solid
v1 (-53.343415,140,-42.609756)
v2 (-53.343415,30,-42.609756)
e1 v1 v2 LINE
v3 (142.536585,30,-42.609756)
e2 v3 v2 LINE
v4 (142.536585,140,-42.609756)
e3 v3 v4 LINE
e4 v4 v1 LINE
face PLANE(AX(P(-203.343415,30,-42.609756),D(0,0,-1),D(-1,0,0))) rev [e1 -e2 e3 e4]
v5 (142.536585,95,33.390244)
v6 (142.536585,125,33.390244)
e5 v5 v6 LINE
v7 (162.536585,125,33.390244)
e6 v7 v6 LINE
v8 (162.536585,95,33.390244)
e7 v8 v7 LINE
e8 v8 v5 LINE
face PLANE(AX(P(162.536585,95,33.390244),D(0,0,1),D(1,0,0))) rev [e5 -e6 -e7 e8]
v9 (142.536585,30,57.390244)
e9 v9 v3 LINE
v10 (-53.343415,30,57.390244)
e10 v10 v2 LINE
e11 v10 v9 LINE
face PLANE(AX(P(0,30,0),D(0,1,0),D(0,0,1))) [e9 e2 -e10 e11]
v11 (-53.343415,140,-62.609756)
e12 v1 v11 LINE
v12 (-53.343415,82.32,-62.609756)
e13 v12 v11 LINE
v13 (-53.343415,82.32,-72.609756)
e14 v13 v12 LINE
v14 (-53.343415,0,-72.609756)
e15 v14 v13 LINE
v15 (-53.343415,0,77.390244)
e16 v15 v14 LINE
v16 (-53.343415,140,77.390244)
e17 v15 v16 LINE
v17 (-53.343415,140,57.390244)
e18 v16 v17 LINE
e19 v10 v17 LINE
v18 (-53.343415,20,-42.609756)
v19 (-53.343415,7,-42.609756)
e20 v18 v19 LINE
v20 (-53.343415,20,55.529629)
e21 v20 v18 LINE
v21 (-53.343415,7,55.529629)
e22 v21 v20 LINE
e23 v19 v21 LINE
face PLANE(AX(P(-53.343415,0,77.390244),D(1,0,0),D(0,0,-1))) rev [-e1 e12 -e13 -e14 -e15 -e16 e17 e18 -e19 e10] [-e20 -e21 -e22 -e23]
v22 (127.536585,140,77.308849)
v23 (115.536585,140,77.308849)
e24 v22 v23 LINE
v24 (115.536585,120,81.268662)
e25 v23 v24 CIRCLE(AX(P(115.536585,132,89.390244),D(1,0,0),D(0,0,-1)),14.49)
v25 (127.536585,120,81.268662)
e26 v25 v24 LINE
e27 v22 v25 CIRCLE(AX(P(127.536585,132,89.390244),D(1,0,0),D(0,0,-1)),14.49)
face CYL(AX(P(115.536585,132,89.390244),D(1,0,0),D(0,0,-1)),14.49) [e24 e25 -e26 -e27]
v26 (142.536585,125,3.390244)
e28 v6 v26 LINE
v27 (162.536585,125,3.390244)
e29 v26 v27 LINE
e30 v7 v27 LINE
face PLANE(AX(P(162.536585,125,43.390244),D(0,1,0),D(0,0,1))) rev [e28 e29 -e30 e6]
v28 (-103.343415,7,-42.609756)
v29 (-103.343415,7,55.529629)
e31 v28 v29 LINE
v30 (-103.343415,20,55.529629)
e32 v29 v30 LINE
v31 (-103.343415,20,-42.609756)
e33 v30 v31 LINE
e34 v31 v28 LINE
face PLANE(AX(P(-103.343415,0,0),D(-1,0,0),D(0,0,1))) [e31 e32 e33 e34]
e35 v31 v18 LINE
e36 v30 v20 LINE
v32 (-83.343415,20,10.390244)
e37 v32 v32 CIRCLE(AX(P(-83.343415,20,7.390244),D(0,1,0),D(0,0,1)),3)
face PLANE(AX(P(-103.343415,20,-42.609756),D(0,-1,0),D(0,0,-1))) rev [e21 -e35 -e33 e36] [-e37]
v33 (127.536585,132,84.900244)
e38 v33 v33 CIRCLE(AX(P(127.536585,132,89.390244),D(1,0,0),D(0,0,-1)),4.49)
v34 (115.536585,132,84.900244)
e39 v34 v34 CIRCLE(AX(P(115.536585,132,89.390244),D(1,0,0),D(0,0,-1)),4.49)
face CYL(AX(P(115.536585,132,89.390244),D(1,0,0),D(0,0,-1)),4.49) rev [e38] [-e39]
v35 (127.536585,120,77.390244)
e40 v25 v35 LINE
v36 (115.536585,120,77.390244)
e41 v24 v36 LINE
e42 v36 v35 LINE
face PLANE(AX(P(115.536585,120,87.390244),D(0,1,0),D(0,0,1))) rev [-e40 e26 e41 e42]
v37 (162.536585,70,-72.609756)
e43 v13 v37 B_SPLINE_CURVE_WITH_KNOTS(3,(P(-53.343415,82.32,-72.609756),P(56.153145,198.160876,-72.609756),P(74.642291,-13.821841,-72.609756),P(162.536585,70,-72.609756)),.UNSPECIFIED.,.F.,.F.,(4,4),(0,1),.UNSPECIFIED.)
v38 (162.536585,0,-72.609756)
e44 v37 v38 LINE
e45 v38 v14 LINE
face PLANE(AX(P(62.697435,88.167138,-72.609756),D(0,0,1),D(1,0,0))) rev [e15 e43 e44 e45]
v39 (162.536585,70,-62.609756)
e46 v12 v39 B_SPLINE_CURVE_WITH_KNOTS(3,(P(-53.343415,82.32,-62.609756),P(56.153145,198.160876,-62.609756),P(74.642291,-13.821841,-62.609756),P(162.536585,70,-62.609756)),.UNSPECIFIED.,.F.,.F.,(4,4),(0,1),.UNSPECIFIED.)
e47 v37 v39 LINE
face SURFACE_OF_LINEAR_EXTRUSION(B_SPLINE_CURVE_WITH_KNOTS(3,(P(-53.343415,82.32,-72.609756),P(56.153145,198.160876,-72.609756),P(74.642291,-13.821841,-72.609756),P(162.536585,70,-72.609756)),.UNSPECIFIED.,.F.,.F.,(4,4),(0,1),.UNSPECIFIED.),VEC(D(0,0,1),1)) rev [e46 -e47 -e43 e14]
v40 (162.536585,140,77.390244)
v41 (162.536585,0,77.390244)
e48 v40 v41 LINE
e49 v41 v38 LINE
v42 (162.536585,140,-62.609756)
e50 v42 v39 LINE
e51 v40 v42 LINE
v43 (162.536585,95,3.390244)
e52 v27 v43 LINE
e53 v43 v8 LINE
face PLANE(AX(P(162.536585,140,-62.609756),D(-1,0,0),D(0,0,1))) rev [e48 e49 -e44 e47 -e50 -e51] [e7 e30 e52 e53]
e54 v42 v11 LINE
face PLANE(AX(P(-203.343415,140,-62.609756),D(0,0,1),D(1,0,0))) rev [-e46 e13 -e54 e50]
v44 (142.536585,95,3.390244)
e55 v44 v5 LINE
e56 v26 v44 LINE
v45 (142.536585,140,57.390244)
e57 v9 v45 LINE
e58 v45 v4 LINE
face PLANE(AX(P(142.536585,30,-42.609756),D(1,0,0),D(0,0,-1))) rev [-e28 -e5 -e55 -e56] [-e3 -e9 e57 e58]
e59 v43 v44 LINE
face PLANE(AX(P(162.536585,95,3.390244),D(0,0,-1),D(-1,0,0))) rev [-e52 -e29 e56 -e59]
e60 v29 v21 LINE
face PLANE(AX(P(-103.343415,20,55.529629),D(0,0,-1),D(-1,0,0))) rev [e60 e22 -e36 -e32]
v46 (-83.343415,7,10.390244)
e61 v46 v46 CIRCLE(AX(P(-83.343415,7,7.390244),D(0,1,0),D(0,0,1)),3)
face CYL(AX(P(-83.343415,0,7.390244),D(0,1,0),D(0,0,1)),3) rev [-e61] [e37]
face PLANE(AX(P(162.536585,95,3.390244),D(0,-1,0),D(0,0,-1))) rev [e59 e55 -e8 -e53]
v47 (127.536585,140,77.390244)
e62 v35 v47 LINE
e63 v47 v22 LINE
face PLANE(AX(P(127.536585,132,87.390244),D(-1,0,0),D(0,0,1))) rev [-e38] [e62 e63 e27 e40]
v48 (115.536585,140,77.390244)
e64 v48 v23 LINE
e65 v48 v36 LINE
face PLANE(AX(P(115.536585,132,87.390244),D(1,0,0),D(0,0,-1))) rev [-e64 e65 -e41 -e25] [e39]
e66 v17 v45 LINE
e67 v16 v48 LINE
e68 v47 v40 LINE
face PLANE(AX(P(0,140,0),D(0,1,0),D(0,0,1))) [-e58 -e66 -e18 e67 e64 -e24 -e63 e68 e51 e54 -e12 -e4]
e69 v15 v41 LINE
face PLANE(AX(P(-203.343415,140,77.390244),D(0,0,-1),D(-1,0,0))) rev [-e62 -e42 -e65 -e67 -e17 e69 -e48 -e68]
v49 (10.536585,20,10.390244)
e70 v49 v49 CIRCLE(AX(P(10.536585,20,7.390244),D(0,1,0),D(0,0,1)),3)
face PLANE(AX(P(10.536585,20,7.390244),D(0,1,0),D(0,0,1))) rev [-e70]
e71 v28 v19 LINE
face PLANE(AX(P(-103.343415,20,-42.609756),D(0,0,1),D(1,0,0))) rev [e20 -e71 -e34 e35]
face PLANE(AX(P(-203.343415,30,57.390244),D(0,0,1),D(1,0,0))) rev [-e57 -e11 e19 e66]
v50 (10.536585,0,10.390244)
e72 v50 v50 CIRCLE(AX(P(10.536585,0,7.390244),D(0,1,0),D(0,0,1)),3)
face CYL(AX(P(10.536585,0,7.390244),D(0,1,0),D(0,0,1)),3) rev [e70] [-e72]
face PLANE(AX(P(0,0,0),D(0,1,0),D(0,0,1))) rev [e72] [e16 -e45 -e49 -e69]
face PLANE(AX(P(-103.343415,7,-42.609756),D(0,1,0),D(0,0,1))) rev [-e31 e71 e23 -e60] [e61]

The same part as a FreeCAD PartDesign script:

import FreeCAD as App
import Part
import Sketcher

V = App.Vector

doc = App.newDocument("Part")
body = doc.addObject("PartDesign::Body", "Body")

sketch1 = body.newObject("Sketcher::SketchObject", "Sketch")
sketch1.AttachmentSupport = (doc.getObject("XZ_Plane"), [""])
sketch1.MapMode = "FlatFace"
sketch1.addGeometry([
    Part.LineSegment(V(-203.343415, -62.609756, 0), V(-203.343415, 77.390244, 0)),
    Part.LineSegment(V(-203.343415, 77.390244, 0), V(162.536585, 77.390244, 0)),
    Part.LineSegment(V(162.536585, 77.390244, 0), V(162.536585, -62.609756, 0)),
    Part.LineSegment(V(162.536585, -62.609756, 0), V(-203.343415, -62.609756, 0)),
], False)
sketch1.addConstraint([
    Sketcher.Constraint("Coincident", 0, 2, 1, 1),
    Sketcher.Constraint("Coincident", 1, 2, 2, 1),
    Sketcher.Constraint("Coincident", 2, 2, 3, 1),
    Sketcher.Constraint("Coincident", 3, 2, 0, 1),
    Sketcher.Constraint("Vertical", 0),
    Sketcher.Constraint("Horizontal", 1),
    Sketcher.Constraint("Vertical", 2),
    Sketcher.Constraint("Horizontal", 3),
    Sketcher.Constraint("DistanceY", 0, 1, 0, 2, 140.0),
    Sketcher.Constraint("DistanceX", 1, 1, 1, 2, 365.88),
    Sketcher.Constraint("DistanceX", 0, 2, -1, 1, 203.343415),
    Sketcher.Constraint("DistanceY", -1, 1, 0, 2, 77.390244),
])
pad1 = body.newObject("PartDesign::Pad", "Pad")
pad1.Profile = sketch1
pad1.Length = 140
pad1.Reversed = True

sketch2 = body.newObject("Sketcher::SketchObject", "Sketch001")
sketch2.AttachmentSupport = (doc.getObject("XZ_Plane"), [""])
sketch2.MapMode = "FlatFace"
sketch2.AttachmentOffset = App.Placement(V(0, 0, -140), App.Rotation())
sketch2.addGeometry([
    Part.LineSegment(V(-203.343415, -42.609756, 0), V(-203.343415, 57.390244, 0)),
    Part.LineSegment(V(-203.343415, 57.390244, 0), V(142.536585, 57.390244, 0)),
    Part.LineSegment(V(142.536585, 57.390244, 0), V(142.536585, -42.609756, 0)),
    Part.LineSegment(V(142.536585, -42.609756, 0), V(-203.343415, -42.609756, 0)),
], False)
sketch2.addConstraint([
    Sketcher.Constraint("Coincident", 0, 2, 1, 1),
    Sketcher.Constraint("Coincident", 1, 2, 2, 1),
    Sketcher.Constraint("Coincident", 2, 2, 3, 1),
    Sketcher.Constraint("Coincident", 3, 2, 0, 1),
    Sketcher.Constraint("Vertical", 0),
    Sketcher.Constraint("Horizontal", 1),
    Sketcher.Constraint("Vertical", 2),
    Sketcher.Constraint("Horizontal", 3),
    Sketcher.Constraint("DistanceY", 0, 1, 0, 2, 100.0),
    Sketcher.Constraint("DistanceX", 1, 1, 1, 2, 345.88),
    Sketcher.Constraint("DistanceX", 0, 2, -1, 1, 203.343415),
    Sketcher.Constraint("DistanceY", -1, 1, 0, 2, 57.390244),
])
pocket1 = body.newObject("PartDesign::Pocket", "Pocket")
pocket1.Profile = sketch2
pocket1.Length = 110
pocket1.Reversed = True

sketch3 = body.newObject("Sketcher::SketchObject", "Sketch002")
sketch3.AttachmentSupport = (doc.getObject("XY_Plane"), [""])
sketch3.MapMode = "FlatFace"
sketch3.AttachmentOffset = App.Placement(V(0, 0, 77.390244), App.Rotation())
sketch3.addGeometry([
    Part.LineSegment(V(115.536585, 132, 0), V(115.536585, 120, 0)),
    Part.LineSegment(V(115.536585, 120, 0), V(127.536585, 120, 0)),
    Part.LineSegment(V(127.536585, 120, 0), V(127.536585, 132, 0)),
    Part.LineSegment(V(127.536585, 132, 0), V(115.536585, 132, 0)),
], False)
sketch3.addConstraint([
    Sketcher.Constraint("Coincident", 0, 2, 1, 1),
    Sketcher.Constraint("Coincident", 1, 2, 2, 1),
    Sketcher.Constraint("Coincident", 2, 2, 3, 1),
    Sketcher.Constraint("Coincident", 3, 2, 0, 1),
    Sketcher.Constraint("Vertical", 0),
    Sketcher.Constraint("Horizontal", 1),
    Sketcher.Constraint("Vertical", 2),
    Sketcher.Constraint("Horizontal", 3),
    Sketcher.Constraint("Equal", 3, 0),
    Sketcher.Constraint("DistanceX", 1, 1, 1, 2, 12.0),
    Sketcher.Constraint("DistanceY", -1, 1, 0, 2, 120.0),
    Sketcher.Constraint("DistanceX", -1, 1, 0, 2, 115.536585),
])
pad2 = body.newObject("PartDesign::Pad", "Pad001")
pad2.Profile = sketch3
pad2.Length = 10

sketch4 = body.newObject("Sketcher::SketchObject", "Sketch003")
sketch4.AttachmentSupport = (doc.getObject("YZ_Plane"), [""])
sketch4.MapMode = "FlatFace"
sketch4.AttachmentOffset = App.Placement(V(0, 0, 127.536585), App.Rotation())
sketch4.addGeometry([
    Part.Circle(V(132, 89.390244, 0), V(0, 0, 1), 14.49),
    Part.Circle(V(132, 89.390244, 0), V(0, 0, 1), 4.49),
], False)
sketch4.addConstraint([
    Sketcher.Constraint("Coincident", 1, 3, 0, 3),
    Sketcher.Constraint("Diameter", 0, 28.98),
    Sketcher.Constraint("Diameter", 1, 8.98),
    Sketcher.Constraint("DistanceX", -1, 1, 0, 3, 132.0),
    Sketcher.Constraint("DistanceY", -1, 1, 0, 3, 89.390244),
])
pad3 = body.newObject("PartDesign::Pad", "Pad002")
pad3.Profile = sketch4
pad3.Length = 12
pad3.Reversed = True

sketch5 = body.newObject("Sketcher::SketchObject", "Sketch004")
sketch5.AttachmentSupport = (doc.getObject("YZ_Plane"), [""])
sketch5.MapMode = "FlatFace"
sketch5.AttachmentOffset = App.Placement(V(0, 0, 127.536585), App.Rotation())
sketch5.addGeometry(Part.Circle(V(132, 89.390244, 0), V(0, 0, 1), 4.49), False)
sketch5.addConstraint([
    Sketcher.Constraint("Diameter", 0, 8.98),
    Sketcher.Constraint("DistanceX", -1, 1, 0, 3, 132.0),
    Sketcher.Constraint("DistanceY", -1, 1, 0, 3, 89.390244),
])
pocket2 = body.newObject("PartDesign::Pocket", "Pocket001")
pocket2.Profile = sketch5
pocket2.Type = "ThroughAll"

sketch6 = body.newObject("Sketcher::SketchObject", "Sketch005")
sketch6.AttachmentSupport = (doc.getObject("XZ_Plane"), [""])
sketch6.MapMode = "FlatFace"
sketch6.AttachmentOffset = App.Placement(V(0, 0, -140), App.Rotation())
sketch6.addGeometry([
    Part.LineSegment(V(-203.343415, -62.609756, 0), V(-203.343415, 77.390244, 0)),
    Part.LineSegment(V(-203.343415, 77.390244, 0), V(-53.343415, 77.390244, 0)),
    Part.LineSegment(V(-53.343415, 77.390244, 0), V(-53.343415, -62.609756, 0)),
    Part.LineSegment(V(-53.343415, -62.609756, 0), V(-203.343415, -62.609756, 0)),
], False)
sketch6.addConstraint([
    Sketcher.Constraint("Coincident", 0, 2, 1, 1),
    Sketcher.Constraint("Coincident", 1, 2, 2, 1),
    Sketcher.Constraint("Coincident", 2, 2, 3, 1),
    Sketcher.Constraint("Coincident", 3, 2, 0, 1),
    Sketcher.Constraint("Vertical", 0),
    Sketcher.Constraint("Horizontal", 1),
    Sketcher.Constraint("Vertical", 2),
    Sketcher.Constraint("Horizontal", 3),
    Sketcher.Constraint("DistanceX", 1, 1, 1, 2, 150.0),
    Sketcher.Constraint("DistanceY", 0, 1, 0, 2, 140.0),
    Sketcher.Constraint("DistanceX", 0, 2, -1, 1, 203.343415),
    Sketcher.Constraint("DistanceY", -1, 1, 0, 2, 77.390244),
])
pocket3 = body.newObject("PartDesign::Pocket", "Pocket002")
pocket3.Profile = sketch6
pocket3.Type = "ThroughAll"
pocket3.Reversed = True

sketch7 = body.newObject("Sketcher::SketchObject", "Sketch006")
sketch7.AttachmentSupport = (doc.getObject("YZ_Plane"), [""])
sketch7.MapMode = "FlatFace"
sketch7.AttachmentOffset = App.Placement(V(0, 0, -53.343415), App.Rotation())
sketch7.addGeometry([
    Part.LineSegment(V(20, -42.609756, 0), V(7, -42.609756, 0)),
    Part.LineSegment(V(7, -42.609756, 0), V(7, 55.529629, 0)),
    Part.LineSegment(V(7, 55.529629, 0), V(20, 55.529629, 0)),
    Part.LineSegment(V(20, 55.529629, 0), V(20, -42.609756, 0)),
], False)
sketch7.addConstraint([
    Sketcher.Constraint("Coincident", 0, 2, 1, 1),
    Sketcher.Constraint("Coincident", 1, 2, 2, 1),
    Sketcher.Constraint("Coincident", 2, 2, 3, 1),
    Sketcher.Constraint("Coincident", 3, 2, 0, 1),
    Sketcher.Constraint("Horizontal", 0),
    Sketcher.Constraint("Vertical", 1),
    Sketcher.Constraint("Horizontal", 2),
    Sketcher.Constraint("Vertical", 3),
    Sketcher.Constraint("DistanceX", 0, 2, 0, 1, 13.0),
    Sketcher.Constraint("DistanceX", -1, 1, 0, 2, 7.0),
    Sketcher.Constraint("DistanceY", 1, 1, 1, 2, 98.139385),
    Sketcher.Constraint("DistanceY", -1, 1, 1, 2, 55.529629),
])
pad4 = body.newObject("PartDesign::Pad", "Pad003")
pad4.Profile = sketch7
pad4.Length = 50
pad4.Reversed = True

sketch8 = body.newObject("Sketcher::SketchObject", "Sketch007")
sketch8.AttachmentSupport = (doc.getObject("XZ_Plane"), [""])
sketch8.MapMode = "FlatFace"
sketch8.AttachmentOffset = App.Placement(V(0, 0, -20), App.Rotation())
sketch8.addGeometry(Part.Circle(V(10.536585, 7.390244, 0), V(0, 0, 1), 3), False)
sketch8.addConstraint([
    Sketcher.Constraint("Diameter", 0, 6.0),
    Sketcher.Constraint("DistanceX", -1, 1, 0, 3, 10.536585),
    Sketcher.Constraint("DistanceY", -1, 1, 0, 3, 7.390244),
])
pocket4 = body.newObject("PartDesign::Pocket", "Pocket003")
pocket4.Profile = sketch8
pocket4.Type = "ThroughAll"
pocket4.Reversed = True

sketch9 = body.newObject("Sketcher::SketchObject", "Sketch008")
sketch9.AttachmentSupport = (doc.getObject("XY_Plane"), [""])
sketch9.MapMode = "FlatFace"
sketch9.AttachmentOffset = App.Placement(V(0, 0, -62.609756), App.Rotation())
sketch9.addGeometry([
    Part.LineSegment(V(162.536585, 70, 0), V(162.536585, 0, 0)),
    Part.LineSegment(V(162.536585, 0, 0), V(-53.343415, 0, 0)),
    Part.LineSegment(V(-53.343415, 0, 0), V(-53.343415, 82.32, 0)),
    Part.BSplineCurve([V(-53.343415, 82.32, 0), V(56.153145, 198.160876, 0), V(74.642291, -13.821841, 0), V(162.536585, 70, 0)], [4, 4], [0, 1], False, 3, [1, 1, 1, 1], False),
], False)
sketch9.addConstraint([
    Sketcher.Constraint("Block", 3),
    Sketcher.Constraint("Coincident", 0, 2, 1, 1),
    Sketcher.Constraint("Coincident", 1, 2, 2, 1),
    Sketcher.Constraint("Coincident", 2, 2, 3, 1),
    Sketcher.Constraint("Coincident", 3, 2, 0, 1),
    Sketcher.Constraint("Vertical", 0),
    Sketcher.Constraint("Horizontal", 1),
    Sketcher.Constraint("Vertical", 2),
    Sketcher.Constraint("PointOnObject", 0, 2, -1),
])
pad5 = body.newObject("PartDesign::Pad", "Pad004")
pad5.Profile = sketch9
pad5.Length = 10
pad5.Reversed = True

sketch10 = body.newObject("Sketcher::SketchObject", "Sketch009")
sketch10.AttachmentSupport = (doc.getObject("YZ_Plane"), [""])
sketch10.MapMode = "FlatFace"
sketch10.AttachmentOffset = App.Placement(V(0, 0, 142.536585), App.Rotation())
sketch10.addGeometry([
    Part.LineSegment(V(140, 3.390244, 0), V(95, 3.390244, 0)),
    Part.LineSegment(V(95, 3.390244, 0), V(95, 33.390244, 0)),
    Part.LineSegment(V(95, 33.390244, 0), V(140, 33.390244, 0)),
    Part.LineSegment(V(140, 33.390244, 0), V(140, 3.390244, 0)),
], False)
sketch10.addConstraint([
    Sketcher.Constraint("Coincident", 0, 2, 1, 1),
    Sketcher.Constraint("Coincident", 1, 2, 2, 1),
    Sketcher.Constraint("Coincident", 2, 2, 3, 1),
    Sketcher.Constraint("Coincident", 3, 2, 0, 1),
    Sketcher.Constraint("Horizontal", 0),
    Sketcher.Constraint("Vertical", 1),
    Sketcher.Constraint("Horizontal", 2),
    Sketcher.Constraint("Vertical", 3),
    Sketcher.Constraint("DistanceX", 0, 2, 0, 1, 45.0),
    Sketcher.Constraint("DistanceY", 1, 1, 1, 2, 30.0),
    Sketcher.Constraint("DistanceX", -1, 1, 0, 2, 95.0),
    Sketcher.Constraint("DistanceY", -1, 1, 0, 2, 3.390244),
])
pocket5 = body.newObject("PartDesign::Pocket", "Pocket004")
pocket5.Profile = sketch10
pocket5.Type = "ThroughAll"
pocket5.Reversed = True

sketch11 = body.newObject("Sketcher::SketchObject", "Sketch010")
sketch11.AttachmentSupport = (doc.getObject("XY_Plane"), [""])
sketch11.MapMode = "FlatFace"
sketch11.AttachmentOffset = App.Placement(V(0, 0, 3.390244), App.Rotation())
sketch11.addGeometry([
    Part.LineSegment(V(142.536585, 140, 0), V(142.536585, 125, 0)),
    Part.LineSegment(V(142.536585, 125, 0), V(162.536585, 125, 0)),
    Part.LineSegment(V(162.536585, 125, 0), V(162.536585, 140, 0)),
    Part.LineSegment(V(162.536585, 140, 0), V(142.536585, 140, 0)),
], False)
sketch11.addConstraint([
    Sketcher.Constraint("Coincident", 0, 2, 1, 1),
    Sketcher.Constraint("Coincident", 1, 2, 2, 1),
    Sketcher.Constraint("Coincident", 2, 2, 3, 1),
    Sketcher.Constraint("Coincident", 3, 2, 0, 1),
    Sketcher.Constraint("Vertical", 0),
    Sketcher.Constraint("Horizontal", 1),
    Sketcher.Constraint("Vertical", 2),
    Sketcher.Constraint("Horizontal", 3),
    Sketcher.Constraint("DistanceX", 1, 1, 1, 2, 20.0),
    Sketcher.Constraint("DistanceY", 0, 2, 0, 1, 15.0),
    Sketcher.Constraint("DistanceY", -1, 1, 0, 2, 125.0),
    Sketcher.Constraint("DistanceX", -1, 1, 0, 2, 142.536585),
])
pad6 = body.newObject("PartDesign::Pad", "Pad005")
pad6.Profile = sketch11
pad6.Length = 40

sketch12 = body.newObject("Sketcher::SketchObject", "Sketch011")
sketch12.AttachmentSupport = (doc.getObject("XZ_Plane"), [""])
sketch12.MapMode = "FlatFace"
sketch12.AttachmentOffset = App.Placement(V(0, 0, -20), App.Rotation())
sketch12.addGeometry(Part.Circle(V(-83.343415, 7.390244, 0), V(0, 0, 1), 3), False)
sketch12.addConstraint([
    Sketcher.Constraint("Diameter", 0, 6.0),
    Sketcher.Constraint("DistanceX", 0, 3, -1, 1, 83.343415),
    Sketcher.Constraint("DistanceY", -1, 1, 0, 3, 7.390244),
])
pocket6 = body.newObject("PartDesign::Pocket", "Pocket005")
pocket6.Profile = sketch12
pocket6.Type = "ThroughAll"
pocket6.Reversed = True

doc.recompute()
